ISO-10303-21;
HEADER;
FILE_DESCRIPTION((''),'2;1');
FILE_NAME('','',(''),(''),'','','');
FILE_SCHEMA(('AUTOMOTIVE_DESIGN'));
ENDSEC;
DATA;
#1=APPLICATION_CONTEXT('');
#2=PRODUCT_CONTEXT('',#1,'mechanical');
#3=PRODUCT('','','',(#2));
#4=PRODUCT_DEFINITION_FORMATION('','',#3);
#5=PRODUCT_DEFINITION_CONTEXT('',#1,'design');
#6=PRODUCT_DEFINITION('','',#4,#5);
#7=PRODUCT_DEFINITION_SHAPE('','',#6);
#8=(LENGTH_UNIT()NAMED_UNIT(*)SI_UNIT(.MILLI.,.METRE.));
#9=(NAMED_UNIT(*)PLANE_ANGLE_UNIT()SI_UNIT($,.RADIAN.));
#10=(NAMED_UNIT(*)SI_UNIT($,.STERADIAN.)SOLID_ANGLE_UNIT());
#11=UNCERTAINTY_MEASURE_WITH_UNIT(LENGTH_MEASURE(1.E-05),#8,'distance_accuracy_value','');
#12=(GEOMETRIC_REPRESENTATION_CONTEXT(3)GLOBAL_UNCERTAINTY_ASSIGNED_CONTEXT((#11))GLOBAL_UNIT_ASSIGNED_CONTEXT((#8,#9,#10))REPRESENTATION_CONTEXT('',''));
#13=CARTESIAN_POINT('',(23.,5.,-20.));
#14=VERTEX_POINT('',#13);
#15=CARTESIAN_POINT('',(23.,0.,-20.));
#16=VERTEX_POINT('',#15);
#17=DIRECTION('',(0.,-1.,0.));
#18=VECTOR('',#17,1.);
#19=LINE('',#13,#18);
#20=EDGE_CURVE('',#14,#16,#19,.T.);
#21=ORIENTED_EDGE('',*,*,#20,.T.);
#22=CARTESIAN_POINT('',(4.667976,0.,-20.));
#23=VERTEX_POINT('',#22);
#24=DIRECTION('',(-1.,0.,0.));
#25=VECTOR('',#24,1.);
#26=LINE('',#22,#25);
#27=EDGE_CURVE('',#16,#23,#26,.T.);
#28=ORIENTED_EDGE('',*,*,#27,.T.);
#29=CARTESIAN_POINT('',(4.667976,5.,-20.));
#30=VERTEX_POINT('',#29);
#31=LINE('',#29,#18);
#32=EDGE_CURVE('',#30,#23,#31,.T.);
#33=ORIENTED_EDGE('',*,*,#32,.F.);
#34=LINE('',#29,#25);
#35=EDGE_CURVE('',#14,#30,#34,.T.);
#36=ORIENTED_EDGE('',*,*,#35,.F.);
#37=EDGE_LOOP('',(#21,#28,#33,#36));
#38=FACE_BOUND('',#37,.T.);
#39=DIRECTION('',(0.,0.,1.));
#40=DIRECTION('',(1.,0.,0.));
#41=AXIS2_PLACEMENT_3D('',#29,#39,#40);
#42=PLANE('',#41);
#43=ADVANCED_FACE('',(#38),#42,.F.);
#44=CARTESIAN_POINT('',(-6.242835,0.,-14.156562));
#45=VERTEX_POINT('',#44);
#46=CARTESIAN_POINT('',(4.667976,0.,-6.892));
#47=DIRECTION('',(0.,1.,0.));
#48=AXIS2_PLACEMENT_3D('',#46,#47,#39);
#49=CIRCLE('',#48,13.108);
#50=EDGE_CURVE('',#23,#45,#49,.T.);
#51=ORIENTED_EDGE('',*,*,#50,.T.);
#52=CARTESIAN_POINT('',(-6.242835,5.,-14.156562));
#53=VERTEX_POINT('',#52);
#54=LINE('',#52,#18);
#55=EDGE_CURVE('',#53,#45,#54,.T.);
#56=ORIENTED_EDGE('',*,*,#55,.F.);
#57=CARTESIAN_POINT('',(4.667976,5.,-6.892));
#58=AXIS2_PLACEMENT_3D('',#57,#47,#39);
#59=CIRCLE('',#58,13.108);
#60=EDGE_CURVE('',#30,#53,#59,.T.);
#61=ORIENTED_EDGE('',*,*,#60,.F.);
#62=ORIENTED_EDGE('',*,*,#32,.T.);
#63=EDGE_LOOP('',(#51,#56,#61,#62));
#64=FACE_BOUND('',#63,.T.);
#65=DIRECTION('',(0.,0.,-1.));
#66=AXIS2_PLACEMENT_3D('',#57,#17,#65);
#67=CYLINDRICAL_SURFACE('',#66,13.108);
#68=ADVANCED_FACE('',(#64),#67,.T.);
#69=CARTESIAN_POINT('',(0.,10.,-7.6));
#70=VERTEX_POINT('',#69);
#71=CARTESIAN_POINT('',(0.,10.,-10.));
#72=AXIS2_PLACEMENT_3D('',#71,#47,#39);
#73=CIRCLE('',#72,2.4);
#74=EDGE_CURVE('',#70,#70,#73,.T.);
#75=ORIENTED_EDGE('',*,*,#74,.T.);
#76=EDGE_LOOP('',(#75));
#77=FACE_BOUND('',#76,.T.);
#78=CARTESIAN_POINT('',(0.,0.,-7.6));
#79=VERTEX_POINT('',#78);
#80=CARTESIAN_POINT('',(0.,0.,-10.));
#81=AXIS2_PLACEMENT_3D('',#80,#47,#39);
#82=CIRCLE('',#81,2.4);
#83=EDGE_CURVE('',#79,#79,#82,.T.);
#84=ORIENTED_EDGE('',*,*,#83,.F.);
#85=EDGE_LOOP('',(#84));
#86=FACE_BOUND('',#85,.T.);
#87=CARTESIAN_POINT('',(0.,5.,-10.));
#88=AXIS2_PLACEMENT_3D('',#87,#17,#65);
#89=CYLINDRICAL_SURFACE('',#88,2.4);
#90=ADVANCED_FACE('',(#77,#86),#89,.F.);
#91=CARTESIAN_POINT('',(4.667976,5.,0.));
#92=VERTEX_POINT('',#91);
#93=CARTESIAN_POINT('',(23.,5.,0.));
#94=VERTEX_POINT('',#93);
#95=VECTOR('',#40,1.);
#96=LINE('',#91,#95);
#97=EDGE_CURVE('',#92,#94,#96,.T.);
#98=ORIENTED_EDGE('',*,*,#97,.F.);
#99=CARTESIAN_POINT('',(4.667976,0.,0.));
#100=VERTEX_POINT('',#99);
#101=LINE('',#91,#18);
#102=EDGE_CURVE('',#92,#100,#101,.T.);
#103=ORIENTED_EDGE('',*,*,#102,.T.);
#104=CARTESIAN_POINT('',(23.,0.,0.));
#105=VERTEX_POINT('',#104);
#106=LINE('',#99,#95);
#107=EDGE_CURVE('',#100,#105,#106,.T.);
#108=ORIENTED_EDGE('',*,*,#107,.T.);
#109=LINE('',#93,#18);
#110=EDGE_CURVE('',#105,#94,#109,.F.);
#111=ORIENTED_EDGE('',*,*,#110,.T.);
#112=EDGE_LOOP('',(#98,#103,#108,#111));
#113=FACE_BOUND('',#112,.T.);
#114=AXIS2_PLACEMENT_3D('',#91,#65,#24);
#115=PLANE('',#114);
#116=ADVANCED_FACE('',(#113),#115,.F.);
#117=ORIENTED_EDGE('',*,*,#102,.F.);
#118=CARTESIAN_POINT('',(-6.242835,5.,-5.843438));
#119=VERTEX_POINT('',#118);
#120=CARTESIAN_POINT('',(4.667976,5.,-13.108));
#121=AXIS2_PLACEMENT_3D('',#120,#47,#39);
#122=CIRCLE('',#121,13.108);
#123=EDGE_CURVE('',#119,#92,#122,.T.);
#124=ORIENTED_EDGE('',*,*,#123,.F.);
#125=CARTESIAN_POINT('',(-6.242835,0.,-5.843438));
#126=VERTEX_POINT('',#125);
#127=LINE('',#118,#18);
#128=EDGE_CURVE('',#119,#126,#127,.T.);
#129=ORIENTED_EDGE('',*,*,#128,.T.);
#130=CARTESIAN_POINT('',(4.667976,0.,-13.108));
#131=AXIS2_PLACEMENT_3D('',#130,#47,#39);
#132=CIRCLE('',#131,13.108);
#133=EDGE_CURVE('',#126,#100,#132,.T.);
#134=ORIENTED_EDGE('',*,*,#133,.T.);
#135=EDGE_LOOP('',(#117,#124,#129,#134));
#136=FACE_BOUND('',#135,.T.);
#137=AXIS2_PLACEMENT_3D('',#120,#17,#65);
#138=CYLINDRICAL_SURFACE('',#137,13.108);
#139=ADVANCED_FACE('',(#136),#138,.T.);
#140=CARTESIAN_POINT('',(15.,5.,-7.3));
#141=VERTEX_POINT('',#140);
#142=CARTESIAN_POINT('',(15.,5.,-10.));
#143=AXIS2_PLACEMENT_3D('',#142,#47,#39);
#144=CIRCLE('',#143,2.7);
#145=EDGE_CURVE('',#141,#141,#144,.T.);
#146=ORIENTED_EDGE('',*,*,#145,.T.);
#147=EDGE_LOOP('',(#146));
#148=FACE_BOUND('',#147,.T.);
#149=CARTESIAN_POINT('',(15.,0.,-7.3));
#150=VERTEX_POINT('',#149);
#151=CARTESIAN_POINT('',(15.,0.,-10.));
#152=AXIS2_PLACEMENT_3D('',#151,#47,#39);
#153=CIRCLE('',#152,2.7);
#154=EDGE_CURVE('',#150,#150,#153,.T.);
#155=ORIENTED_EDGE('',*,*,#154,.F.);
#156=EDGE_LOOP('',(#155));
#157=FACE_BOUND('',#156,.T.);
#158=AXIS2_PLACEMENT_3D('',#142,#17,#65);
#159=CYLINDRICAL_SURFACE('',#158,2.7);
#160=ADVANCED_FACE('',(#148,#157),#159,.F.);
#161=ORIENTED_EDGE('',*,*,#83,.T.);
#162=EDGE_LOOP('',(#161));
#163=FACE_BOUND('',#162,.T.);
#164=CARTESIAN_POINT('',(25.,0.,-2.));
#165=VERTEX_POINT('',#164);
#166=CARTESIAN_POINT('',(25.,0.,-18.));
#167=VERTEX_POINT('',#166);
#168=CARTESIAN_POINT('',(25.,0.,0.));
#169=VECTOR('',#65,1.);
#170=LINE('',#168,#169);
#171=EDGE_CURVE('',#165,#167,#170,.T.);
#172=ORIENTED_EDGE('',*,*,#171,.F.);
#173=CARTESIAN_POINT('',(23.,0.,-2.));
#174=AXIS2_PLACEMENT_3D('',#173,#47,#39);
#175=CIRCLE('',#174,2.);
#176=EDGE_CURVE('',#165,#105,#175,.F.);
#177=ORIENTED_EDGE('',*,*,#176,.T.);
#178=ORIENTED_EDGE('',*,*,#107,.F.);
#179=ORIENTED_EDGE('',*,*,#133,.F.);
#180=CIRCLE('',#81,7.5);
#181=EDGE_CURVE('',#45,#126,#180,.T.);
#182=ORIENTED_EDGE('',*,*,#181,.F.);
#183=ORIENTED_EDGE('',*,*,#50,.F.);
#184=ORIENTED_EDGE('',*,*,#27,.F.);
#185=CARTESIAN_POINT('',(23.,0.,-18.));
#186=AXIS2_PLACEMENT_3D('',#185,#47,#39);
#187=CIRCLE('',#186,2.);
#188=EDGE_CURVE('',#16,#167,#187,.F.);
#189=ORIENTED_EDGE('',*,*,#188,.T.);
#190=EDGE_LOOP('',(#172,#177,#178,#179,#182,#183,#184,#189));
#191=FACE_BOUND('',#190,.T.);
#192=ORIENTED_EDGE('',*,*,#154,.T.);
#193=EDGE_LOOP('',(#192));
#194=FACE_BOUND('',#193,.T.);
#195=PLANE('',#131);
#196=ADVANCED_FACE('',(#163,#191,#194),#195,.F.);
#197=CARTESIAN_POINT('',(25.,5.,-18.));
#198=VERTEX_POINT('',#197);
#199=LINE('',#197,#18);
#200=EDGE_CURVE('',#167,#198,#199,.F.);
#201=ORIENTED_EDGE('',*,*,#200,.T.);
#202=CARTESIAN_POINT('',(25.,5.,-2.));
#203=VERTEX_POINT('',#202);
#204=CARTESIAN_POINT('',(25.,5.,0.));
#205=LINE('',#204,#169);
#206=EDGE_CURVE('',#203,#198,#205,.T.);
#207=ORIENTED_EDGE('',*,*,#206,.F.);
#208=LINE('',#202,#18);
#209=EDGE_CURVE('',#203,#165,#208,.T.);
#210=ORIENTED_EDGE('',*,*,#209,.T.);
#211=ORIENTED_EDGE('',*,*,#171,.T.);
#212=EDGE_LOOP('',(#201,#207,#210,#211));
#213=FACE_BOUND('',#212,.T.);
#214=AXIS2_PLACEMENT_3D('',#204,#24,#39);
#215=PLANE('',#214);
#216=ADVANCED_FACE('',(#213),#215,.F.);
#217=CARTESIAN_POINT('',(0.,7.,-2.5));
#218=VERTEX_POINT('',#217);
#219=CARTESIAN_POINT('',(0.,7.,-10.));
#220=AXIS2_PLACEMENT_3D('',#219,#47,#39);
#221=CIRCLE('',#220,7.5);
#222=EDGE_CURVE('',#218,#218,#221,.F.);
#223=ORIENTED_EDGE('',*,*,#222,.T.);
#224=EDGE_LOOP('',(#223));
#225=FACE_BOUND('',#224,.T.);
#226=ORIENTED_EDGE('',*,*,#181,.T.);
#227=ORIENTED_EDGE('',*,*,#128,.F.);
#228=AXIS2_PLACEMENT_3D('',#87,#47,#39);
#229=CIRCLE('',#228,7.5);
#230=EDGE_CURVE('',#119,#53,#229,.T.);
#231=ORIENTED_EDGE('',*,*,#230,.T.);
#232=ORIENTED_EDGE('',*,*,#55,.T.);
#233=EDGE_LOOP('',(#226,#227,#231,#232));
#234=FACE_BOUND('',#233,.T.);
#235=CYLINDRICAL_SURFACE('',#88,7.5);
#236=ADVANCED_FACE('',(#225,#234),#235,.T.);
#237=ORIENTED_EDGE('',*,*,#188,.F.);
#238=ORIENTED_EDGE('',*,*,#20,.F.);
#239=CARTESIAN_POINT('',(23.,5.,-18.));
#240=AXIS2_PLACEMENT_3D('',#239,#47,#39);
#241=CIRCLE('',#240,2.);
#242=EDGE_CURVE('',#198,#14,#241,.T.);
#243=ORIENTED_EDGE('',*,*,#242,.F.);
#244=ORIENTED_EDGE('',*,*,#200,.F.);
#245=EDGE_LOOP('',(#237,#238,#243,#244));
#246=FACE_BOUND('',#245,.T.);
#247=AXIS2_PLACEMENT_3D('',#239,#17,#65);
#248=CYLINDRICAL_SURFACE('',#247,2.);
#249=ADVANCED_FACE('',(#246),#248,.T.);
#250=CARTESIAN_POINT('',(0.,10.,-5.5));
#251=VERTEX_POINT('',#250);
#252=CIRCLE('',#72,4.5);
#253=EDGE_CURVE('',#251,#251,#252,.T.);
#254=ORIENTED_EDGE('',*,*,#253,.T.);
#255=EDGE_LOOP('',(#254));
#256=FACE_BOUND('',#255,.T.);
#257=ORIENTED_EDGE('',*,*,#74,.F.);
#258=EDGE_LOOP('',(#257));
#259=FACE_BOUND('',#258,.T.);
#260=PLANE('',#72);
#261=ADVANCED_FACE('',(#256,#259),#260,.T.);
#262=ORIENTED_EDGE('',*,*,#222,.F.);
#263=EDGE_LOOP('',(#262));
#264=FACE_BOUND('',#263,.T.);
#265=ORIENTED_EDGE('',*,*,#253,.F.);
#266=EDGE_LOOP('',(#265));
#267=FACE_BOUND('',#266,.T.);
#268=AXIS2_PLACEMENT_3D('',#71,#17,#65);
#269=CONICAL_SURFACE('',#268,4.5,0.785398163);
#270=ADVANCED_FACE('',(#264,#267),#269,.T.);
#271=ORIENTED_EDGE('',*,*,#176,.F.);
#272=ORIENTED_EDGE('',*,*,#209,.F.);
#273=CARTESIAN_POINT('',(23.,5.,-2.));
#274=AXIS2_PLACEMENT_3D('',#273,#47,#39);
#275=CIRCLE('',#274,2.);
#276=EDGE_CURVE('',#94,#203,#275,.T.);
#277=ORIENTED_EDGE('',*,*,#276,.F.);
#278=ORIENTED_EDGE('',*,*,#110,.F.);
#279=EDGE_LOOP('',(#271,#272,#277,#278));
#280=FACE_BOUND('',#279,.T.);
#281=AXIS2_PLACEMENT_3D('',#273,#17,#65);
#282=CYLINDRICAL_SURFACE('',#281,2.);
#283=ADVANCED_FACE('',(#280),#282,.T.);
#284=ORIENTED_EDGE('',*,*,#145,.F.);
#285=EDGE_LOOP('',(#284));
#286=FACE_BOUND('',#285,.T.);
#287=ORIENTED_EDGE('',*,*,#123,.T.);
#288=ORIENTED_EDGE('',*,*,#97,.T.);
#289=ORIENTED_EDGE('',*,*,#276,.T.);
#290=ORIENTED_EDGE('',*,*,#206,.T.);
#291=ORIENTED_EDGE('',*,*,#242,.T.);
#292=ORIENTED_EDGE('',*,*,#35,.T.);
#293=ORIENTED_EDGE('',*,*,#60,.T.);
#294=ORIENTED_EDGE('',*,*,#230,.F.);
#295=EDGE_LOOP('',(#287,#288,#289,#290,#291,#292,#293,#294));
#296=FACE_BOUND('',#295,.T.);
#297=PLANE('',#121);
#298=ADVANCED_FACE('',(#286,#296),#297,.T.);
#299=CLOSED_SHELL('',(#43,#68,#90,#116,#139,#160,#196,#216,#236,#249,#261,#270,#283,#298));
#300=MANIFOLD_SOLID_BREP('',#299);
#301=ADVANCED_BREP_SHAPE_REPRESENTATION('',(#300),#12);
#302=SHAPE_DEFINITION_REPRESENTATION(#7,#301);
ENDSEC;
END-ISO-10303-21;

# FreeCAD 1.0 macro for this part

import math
import FreeCAD as App
import Part
import Sketcher

V = App.Vector
Q = App.Units.Quantity


def edges_at(feature, points):
    """Names of the edges that pass closest to the given points."""
    edges = feature.Shape.Edges
    near = lambda p: min(range(len(edges)), key=lambda i: edges[i].distToShape(Part.Vertex(*p))[0])
    return sorted({f"Edge{near(p) + 1}" for p in points})

doc = App.newDocument("Part")
body = doc.addObject("PartDesign::Body", "Body")

sketch1 = body.newObject("Sketcher::SketchObject", "Sketch")
sketch1.AttachmentSupport = (doc.getObject("XZ_Plane"), [""])
sketch1.MapMode = "FlatFace"
sketch1.addGeometry([
    Part.LineSegment(V(4.7, 0, 0), V(25, 0, 0)),
    Part.LineSegment(V(25, 0, 0), V(25, -20, 0)),
    Part.LineSegment(V(25, -20, 0), V(4.7, -20, 0)),
    Part.ArcOfCircle(Part.Circle(V(4.7, -6.9, 0), V(0, 0, 1), 13.1), math.radians(-146), math.radians(-90)),
    Part.ArcOfCircle(Part.Circle(V(0, -10, 0), V(0, 0, 1), 7.5), math.radians(146), math.radians(214)),
    Part.ArcOfCircle(Part.Circle(V(4.7, -13.1, 0), V(0, 0, 1), 13.1), math.radians(90), math.radians(146)),
    Part.Circle(V(0, -10, 0), V(0, 0, 1), 2.4),
    Part.Circle(V(15, -10, 0), V(0, 0, 1), 2.7),
], False)
sketch1.addConstraint([
    Sketcher.Constraint("Coincident", 0, 2, 1, 1),
    Sketcher.Constraint("Coincident", 1, 2, 2, 1),
    Sketcher.Constraint("Tangent", 2, 2, 3, 2),
    Sketcher.Constraint("Tangent", 3, 1, 4, 2),
    Sketcher.Constraint("Tangent", 4, 1, 5, 2),
    Sketcher.Constraint("Tangent", 5, 1, 0, 1),
    Sketcher.Constraint("Horizontal", 0),
    Sketcher.Constraint("Vertical", 1),
    Sketcher.Constraint("Horizontal", 2),
    Sketcher.Constraint("Coincident", 6, 3, 4, 3),
    Sketcher.Constraint("Equal", 3, 5),
    Sketcher.Constraint("PointOnObject", 4, 3, -2),
    Sketcher.Constraint("PointOnObject", 0, 2, -1),
    Sketcher.Constraint("Horizontal", 6, 3, 7, 3),
    Sketcher.Constraint("Vertical", 3, 3, 5, 3),
    Sketcher.Constraint("Diameter", 6, Q("4.8 mm")),
    Sketcher.Constraint("Diameter", 7, Q("5.4 mm")),
    Sketcher.Constraint("Radius", 4, Q("7.5 mm")),
    Sketcher.Constraint("DistanceY", 1, 2, 1, 1, Q("20 mm")),
    Sketcher.Constraint("DistanceX", -1, 1, 7, 3, Q("15 mm")),
    Sketcher.Constraint("DistanceX", -1, 1, 0, 2, Q("25 mm")),
    Sketcher.Constraint("Radius", 3, Q("13.108 mm")),
])
pad1 = body.newObject("PartDesign::Pad", "Pad")
pad1.Profile = sketch1
pad1.Length = 5
pad1.Reversed = True

sketch2 = body.newObject("Sketcher::SketchObject", "Sketch001")
sketch2.AttachmentSupport = (doc.getObject("XZ_Plane"), [""])
sketch2.MapMode = "FlatFace"
sketch2.AttachmentOffset = App.Placement(V(0, 0, -5), App.Rotation())
sketch2.addGeometry([
    Part.Circle(V(0, -10, 0), V(0, 0, 1), 7.5),
    Part.Circle(V(0, -10, 0), V(0, 0, 1), 2.4),
], False)
sketch2.addConstraint([
    Sketcher.Constraint("Coincident", 1, 3, 0, 3),
    Sketcher.Constraint("PointOnObject", 0, 3, -2),
    Sketcher.Constraint("Diameter", 0, Q("15 mm")),
    Sketcher.Constraint("Diameter", 1, Q("4.8 mm")),
    Sketcher.Constraint("DistanceY", 0, 3, -1, 1, Q("10 mm")),
])
pad2 = body.newObject("PartDesign::Pad", "Pad001")
pad2.Profile = sketch2
pad2.Length = 5
pad2.Reversed = True
doc.recompute()

chamfer = body.newObject("PartDesign::Chamfer", "Chamfer")
chamfer.Base = (pad2, edges_at(pad2, [(-7.5, 10, -10)]))
chamfer.Size = 3
doc.recompute()

fillet = body.newObject("PartDesign::Fillet", "Fillet")
fillet.Base = (chamfer, edges_at(chamfer, [(25, 2.5, -20), (25, 2.5, 0)]))
fillet.Radius = 2

doc.recompute()
